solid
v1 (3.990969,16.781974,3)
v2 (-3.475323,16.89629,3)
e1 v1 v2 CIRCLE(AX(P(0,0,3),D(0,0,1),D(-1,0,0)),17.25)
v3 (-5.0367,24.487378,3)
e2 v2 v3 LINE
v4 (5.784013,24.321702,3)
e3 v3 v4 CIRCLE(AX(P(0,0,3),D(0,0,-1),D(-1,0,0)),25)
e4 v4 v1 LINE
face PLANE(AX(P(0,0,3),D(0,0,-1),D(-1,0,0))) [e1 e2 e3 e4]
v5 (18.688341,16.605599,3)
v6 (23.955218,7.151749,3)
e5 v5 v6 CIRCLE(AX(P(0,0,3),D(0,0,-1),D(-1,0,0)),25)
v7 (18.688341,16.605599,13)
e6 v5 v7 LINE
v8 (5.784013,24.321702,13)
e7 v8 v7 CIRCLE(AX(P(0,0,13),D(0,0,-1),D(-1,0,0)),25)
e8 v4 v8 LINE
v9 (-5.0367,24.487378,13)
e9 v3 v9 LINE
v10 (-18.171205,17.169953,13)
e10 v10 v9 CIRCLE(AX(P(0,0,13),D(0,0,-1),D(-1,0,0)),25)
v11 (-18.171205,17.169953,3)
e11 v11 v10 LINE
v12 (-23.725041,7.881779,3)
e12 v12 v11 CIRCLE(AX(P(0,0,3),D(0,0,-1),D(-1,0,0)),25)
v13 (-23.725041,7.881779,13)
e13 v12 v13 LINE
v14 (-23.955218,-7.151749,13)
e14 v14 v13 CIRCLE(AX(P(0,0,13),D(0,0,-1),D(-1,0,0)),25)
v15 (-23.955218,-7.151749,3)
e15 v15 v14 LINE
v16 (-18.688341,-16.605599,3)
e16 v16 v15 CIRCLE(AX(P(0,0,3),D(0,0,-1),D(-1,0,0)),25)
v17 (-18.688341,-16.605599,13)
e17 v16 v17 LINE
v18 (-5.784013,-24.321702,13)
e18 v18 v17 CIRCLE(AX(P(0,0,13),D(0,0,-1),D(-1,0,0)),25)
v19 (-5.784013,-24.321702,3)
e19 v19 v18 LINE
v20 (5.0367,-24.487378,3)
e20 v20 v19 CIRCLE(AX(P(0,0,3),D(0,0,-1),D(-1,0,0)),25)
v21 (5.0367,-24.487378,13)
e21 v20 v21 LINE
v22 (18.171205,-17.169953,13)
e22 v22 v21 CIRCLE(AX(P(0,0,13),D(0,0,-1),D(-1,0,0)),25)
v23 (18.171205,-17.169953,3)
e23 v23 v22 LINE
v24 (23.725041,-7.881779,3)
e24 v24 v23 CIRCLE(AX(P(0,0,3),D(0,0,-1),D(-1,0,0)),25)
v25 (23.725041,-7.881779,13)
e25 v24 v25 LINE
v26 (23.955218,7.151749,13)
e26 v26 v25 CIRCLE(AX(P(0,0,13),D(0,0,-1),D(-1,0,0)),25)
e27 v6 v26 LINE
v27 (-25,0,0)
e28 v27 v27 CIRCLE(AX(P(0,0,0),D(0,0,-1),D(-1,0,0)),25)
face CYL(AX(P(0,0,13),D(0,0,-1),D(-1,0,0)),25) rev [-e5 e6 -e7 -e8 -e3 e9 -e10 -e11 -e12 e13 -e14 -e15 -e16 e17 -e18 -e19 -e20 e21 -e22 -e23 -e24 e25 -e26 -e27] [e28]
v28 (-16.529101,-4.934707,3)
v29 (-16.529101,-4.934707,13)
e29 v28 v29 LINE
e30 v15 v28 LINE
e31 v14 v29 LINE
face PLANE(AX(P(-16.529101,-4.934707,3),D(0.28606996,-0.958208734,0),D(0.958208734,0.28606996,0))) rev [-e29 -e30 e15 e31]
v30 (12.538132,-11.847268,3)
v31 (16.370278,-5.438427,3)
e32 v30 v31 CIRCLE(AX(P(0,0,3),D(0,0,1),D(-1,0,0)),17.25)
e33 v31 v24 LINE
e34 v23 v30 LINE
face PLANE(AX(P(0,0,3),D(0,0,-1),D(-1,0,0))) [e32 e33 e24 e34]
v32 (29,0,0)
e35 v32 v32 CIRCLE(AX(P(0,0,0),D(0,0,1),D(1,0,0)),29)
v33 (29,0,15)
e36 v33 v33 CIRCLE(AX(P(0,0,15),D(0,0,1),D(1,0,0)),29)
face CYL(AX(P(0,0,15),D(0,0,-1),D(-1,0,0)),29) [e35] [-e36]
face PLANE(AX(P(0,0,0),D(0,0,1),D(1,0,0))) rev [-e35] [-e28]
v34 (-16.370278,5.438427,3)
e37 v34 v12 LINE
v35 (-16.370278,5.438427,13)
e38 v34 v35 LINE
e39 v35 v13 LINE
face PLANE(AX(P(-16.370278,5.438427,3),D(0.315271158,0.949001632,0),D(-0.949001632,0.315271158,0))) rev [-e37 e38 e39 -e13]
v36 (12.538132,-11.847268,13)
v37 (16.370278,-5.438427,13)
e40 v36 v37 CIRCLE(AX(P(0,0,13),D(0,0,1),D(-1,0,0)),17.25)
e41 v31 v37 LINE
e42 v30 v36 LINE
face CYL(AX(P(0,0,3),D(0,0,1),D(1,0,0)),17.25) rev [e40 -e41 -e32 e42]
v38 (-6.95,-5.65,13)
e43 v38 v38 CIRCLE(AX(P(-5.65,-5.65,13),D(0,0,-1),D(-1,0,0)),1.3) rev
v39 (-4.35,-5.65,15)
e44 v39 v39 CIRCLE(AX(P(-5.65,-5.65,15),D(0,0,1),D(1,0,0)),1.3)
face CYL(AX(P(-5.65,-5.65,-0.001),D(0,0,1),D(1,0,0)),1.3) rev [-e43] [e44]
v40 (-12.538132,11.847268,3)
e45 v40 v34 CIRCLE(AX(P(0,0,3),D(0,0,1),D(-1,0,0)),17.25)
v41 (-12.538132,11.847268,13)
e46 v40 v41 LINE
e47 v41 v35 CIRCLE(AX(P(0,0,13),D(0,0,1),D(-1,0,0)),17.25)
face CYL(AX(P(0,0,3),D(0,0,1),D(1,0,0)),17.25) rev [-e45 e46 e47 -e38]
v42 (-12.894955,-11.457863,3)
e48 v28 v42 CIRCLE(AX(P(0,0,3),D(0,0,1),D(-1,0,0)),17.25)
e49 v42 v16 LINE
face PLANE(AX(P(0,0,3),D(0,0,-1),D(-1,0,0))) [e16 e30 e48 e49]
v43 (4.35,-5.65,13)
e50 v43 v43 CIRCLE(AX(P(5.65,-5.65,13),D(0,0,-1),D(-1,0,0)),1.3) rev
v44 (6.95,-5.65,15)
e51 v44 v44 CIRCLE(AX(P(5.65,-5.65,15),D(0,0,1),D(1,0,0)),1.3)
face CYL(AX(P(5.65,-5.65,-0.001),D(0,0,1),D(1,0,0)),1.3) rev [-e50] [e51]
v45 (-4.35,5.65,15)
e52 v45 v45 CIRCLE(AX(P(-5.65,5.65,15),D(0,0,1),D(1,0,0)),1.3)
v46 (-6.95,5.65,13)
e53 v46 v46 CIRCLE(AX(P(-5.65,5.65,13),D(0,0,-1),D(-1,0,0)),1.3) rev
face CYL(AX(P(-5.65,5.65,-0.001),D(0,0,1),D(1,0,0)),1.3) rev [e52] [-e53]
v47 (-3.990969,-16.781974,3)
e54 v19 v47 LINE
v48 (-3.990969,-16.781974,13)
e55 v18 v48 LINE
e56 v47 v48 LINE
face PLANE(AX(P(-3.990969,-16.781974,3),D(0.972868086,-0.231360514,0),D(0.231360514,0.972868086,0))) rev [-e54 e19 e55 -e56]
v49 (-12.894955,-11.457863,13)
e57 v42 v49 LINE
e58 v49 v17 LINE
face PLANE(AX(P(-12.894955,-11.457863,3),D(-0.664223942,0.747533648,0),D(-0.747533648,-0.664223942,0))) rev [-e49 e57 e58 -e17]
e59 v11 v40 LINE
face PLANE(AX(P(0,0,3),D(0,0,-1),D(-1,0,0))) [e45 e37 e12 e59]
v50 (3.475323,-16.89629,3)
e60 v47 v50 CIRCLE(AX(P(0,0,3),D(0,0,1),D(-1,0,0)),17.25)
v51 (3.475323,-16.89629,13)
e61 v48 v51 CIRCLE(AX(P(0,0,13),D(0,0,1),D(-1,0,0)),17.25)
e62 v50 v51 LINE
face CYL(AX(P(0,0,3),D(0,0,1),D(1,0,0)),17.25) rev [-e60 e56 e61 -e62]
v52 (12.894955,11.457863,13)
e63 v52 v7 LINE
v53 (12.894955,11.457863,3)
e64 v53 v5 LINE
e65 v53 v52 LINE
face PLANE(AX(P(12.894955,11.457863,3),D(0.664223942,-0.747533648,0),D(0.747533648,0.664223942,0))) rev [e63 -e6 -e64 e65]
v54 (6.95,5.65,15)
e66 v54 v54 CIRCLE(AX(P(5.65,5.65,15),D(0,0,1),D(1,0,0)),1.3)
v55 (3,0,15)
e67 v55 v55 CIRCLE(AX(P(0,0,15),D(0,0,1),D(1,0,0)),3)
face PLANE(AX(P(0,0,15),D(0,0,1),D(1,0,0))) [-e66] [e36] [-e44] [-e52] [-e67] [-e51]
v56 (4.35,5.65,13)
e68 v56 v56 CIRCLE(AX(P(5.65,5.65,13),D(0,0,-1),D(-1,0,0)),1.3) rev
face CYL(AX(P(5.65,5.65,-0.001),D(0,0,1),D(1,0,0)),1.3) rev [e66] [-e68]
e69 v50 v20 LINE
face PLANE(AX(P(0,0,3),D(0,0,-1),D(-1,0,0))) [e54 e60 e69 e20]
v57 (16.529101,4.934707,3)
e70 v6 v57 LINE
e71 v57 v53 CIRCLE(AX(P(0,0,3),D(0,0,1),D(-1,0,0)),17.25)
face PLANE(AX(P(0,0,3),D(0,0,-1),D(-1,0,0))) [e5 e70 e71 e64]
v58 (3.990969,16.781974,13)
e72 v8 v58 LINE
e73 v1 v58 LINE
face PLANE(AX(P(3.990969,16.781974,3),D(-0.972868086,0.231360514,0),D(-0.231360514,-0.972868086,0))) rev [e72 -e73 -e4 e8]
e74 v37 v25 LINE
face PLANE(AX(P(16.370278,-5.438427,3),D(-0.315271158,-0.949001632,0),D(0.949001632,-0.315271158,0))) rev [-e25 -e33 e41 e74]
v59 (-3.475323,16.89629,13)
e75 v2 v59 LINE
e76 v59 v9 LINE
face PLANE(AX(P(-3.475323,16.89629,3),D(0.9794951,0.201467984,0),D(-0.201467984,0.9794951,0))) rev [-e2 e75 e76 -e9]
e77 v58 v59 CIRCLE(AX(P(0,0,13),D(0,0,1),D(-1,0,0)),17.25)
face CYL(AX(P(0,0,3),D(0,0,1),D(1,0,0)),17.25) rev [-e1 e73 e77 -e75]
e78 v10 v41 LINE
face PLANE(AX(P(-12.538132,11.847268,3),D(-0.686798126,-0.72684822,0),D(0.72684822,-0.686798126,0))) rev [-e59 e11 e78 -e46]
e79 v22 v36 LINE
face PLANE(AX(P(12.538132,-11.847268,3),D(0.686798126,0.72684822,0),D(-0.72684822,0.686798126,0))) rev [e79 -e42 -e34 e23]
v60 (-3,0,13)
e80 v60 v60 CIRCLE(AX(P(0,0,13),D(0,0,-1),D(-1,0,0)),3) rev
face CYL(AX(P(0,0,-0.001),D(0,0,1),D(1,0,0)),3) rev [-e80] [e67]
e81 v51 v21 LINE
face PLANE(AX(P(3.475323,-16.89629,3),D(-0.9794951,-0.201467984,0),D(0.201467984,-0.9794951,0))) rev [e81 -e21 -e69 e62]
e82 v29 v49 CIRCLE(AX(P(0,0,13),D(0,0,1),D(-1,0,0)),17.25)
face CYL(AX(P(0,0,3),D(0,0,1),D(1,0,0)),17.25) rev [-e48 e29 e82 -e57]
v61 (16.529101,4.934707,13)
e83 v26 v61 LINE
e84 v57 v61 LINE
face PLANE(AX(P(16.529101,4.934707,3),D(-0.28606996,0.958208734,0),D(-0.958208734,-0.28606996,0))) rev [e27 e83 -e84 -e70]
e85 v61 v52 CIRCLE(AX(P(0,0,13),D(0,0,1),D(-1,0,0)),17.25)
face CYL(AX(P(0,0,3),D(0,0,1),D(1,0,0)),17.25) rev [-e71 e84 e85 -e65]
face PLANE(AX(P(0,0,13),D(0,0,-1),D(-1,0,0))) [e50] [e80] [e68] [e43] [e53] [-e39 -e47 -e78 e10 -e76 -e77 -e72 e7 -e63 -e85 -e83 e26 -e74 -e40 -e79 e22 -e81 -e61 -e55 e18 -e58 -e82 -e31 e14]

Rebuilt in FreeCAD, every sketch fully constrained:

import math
import FreeCAD as App
import Part
import Sketcher
Q = App.Units.Quantity

doc = App.newDocument("Part")
body = doc.addObject("PartDesign::Body", "Body")

# Sketch on XY plane
sketch1 = body.newObject("Sketcher::SketchObject", "Sketch")
sketch1.AttachmentSupport = (doc.getObject("XY_Plane"), [""])
sketch1.MapMode = "FlatFace"
sketch1.addGeometry(Part.Circle(App.Vector(0, 0, 0), App.Vector(0, 0, 1), 29), False)
sketch1.addConstraint([
    Sketcher.Constraint("Coincident", 0, 3, -1, 1),
    Sketcher.Constraint("Diameter", 0, Q("58 mm")),
])
pad1 = body.newObject("PartDesign::Pad", "Pad")
pad1.Profile = sketch1
pad1.Length = 15

# Sketch on XY plane
sketch2 = body.newObject("Sketcher::SketchObject", "Sketch001")
sketch2.AttachmentSupport = (doc.getObject("XY_Plane"), [""])
sketch2.MapMode = "FlatFace"
sketch2.addGeometry(Part.Circle(App.Vector(0, 0, 0), App.Vector(0, 0, 1), 25), False)
sketch2.addConstraint([
    Sketcher.Constraint("Coincident", 0, 3, -1, 1),
    Sketcher.Constraint("Diameter", 0, Q("50 mm")),
])
pocket1 = body.newObject("PartDesign::Pocket", "Pocket")
pocket1.Profile = sketch2
pocket1.Length = 13
pocket1.Reversed = True

# Sketch on XY plane
sketch3 = body.newObject("Sketcher::SketchObject", "Sketch002")
sketch3.AttachmentSupport = (doc.getObject("XY_Plane"), [""])
sketch3.MapMode = "FlatFace"
sketch3.AttachmentOffset = App.Placement(App.Vector(0, 0, 15), App.Rotation())
sketch3.addGeometry(Part.Circle(App.Vector(5.65, 5.65, 0), App.Vector(0, 0, 1), 1.3), False)
sketch3.addConstraint([
    Sketcher.Constraint("Diameter", 0, Q("2.6 mm")),
    Sketcher.Constraint("DistanceX", -1, 1, 0, 3, Q("5.65 mm")),
    Sketcher.Constraint("DistanceY", -1, 1, 0, 3, Q("5.65 mm")),
])
pocket2 = body.newObject("PartDesign::Pocket", "Pocket001")
pocket2.Profile = sketch3
pocket2.Type = "UpToFirst"

# Sketch on XY plane
sketch4 = body.newObject("Sketcher::SketchObject", "Sketch003")
sketch4.AttachmentSupport = (doc.getObject("XY_Plane"), [""])
sketch4.MapMode = "FlatFace"
sketch4.AttachmentOffset = App.Placement(App.Vector(0, 0, 15), App.Rotation())
sketch4.addGeometry(Part.Circle(App.Vector(5.65, -5.65, 0), App.Vector(0, 0, 1), 1.3), False)
sketch4.addConstraint([
    Sketcher.Constraint("Diameter", 0, Q("2.6 mm")),
    Sketcher.Constraint("DistanceX", -1, 1, 0, 3, Q("5.65 mm")),
    Sketcher.Constraint("DistanceY", 0, 3, -1, 1, Q("5.65 mm")),
])
pocket3 = body.newObject("PartDesign::Pocket", "Pocket002")
pocket3.Profile = sketch4
pocket3.Type = "UpToFirst"

# Sketch on XY plane
sketch5 = body.newObject("Sketcher::SketchObject", "Sketch004")
sketch5.AttachmentSupport = (doc.getObject("XY_Plane"), [""])
sketch5.MapMode = "FlatFace"
sketch5.AttachmentOffset = App.Placement(App.Vector(0, 0, 15), App.Rotation())
sketch5.addGeometry(Part.Circle(App.Vector(-5.65, -5.65, 0), App.Vector(0, 0, 1), 1.3), False)
sketch5.addConstraint([
    Sketcher.Constraint("Diameter", 0, Q("2.6 mm")),
    Sketcher.Constraint("DistanceX", 0, 3, -1, 1, Q("5.65 mm")),
    Sketcher.Constraint("DistanceY", 0, 3, -1, 1, Q("5.65 mm")),
])
pocket4 = body.newObject("PartDesign::Pocket", "Pocket003")
pocket4.Profile = sketch5
pocket4.Type = "UpToFirst"

# Sketch on XY plane
sketch6 = body.newObject("Sketcher::SketchObject", "Sketch005")
sketch6.AttachmentSupport = (doc.getObject("XY_Plane"), [""])
sketch6.MapMode = "FlatFace"
sketch6.AttachmentOffset = App.Placement(App.Vector(0, 0, 15), App.Rotation())
sketch6.addGeometry(Part.Circle(App.Vector(-5.65, 5.65, 0), App.Vector(0, 0, 1), 1.3), False)
sketch6.addConstraint([
    Sketcher.Constraint("Diameter", 0, Q("2.6 mm")),
    Sketcher.Constraint("DistanceX", 0, 3, -1, 1, Q("5.65 mm")),
    Sketcher.Constraint("DistanceY", -1, 1, 0, 3, Q("5.65 mm")),
])
pocket5 = body.newObject("PartDesign::Pocket", "Pocket004")
pocket5.Profile = sketch6
pocket5.Type = "UpToFirst"

# Sketch on XY plane
sketch7 = body.newObject("Sketcher::SketchObject", "Sketch006")
sketch7.AttachmentSupport = (doc.getObject("XY_Plane"), [""])
sketch7.MapMode = "FlatFace"
sketch7.AttachmentOffset = App.Placement(App.Vector(0, 0, 15), App.Rotation())
sketch7.addGeometry(Part.Circle(App.Vector(0, 0, 0), App.Vector(0, 0, 1), 3), False)
sketch7.addConstraint([
    Sketcher.Constraint("Coincident", 0, 3, -1, 1),
    Sketcher.Constraint("Diameter", 0, Q("6 mm")),
])
pocket6 = body.newObject("PartDesign::Pocket", "Pocket005")
pocket6.Profile = sketch7
pocket6.Type = "UpToFirst"

# Sketch on XY plane
sketch8 = body.newObject("Sketcher::SketchObject", "Sketch007")
sketch8.AttachmentSupport = (doc.getObject("XY_Plane"), [""])
sketch8.MapMode = "FlatFace"
sketch8.AttachmentOffset = App.Placement(App.Vector(0, 0, 13), App.Rotation())
sketch8.addGeometry([
    Part.LineSegment(App.Vector(-3.475323, 16.89629, 0), App.Vector(-5.0367, 24.487378, 0)),  # 0
    Part.ArcOfCircle(Part.Circle(App.Vector(0, 0, 0), App.Vector(0, 0, 1), 25), math.radians(76.622816), math.radians(101.622816)),  # 1
    Part.LineSegment(App.Vector(5.784013, 24.321702, 0), App.Vector(3.990969, 16.781974, 0)),  # 2
    Part.ArcOfCircle(Part.Circle(App.Vector(0, 0, 0), App.Vector(0, 0, 1), 17.25), math.radians(76.622816), math.radians(101.622816)),  # 3
    Part.LineSegment(App.Vector(-16.370278, 5.438427, 0), App.Vector(-23.725041, 7.881779, 0)),  # 4
    Part.ArcOfCircle(Part.Circle(App.Vector(0, 0, 0), App.Vector(0, 0, 1), 25), math.radians(136.622816), math.radians(161.622816)),  # 5
    Part.LineSegment(App.Vector(-18.171205, 17.169953, 0), App.Vector(-12.538132, 11.847268, 0)),  # 6
    Part.ArcOfCircle(Part.Circle(App.Vector(0, 0, 0), App.Vector(0, 0, 1), 17.25), math.radians(136.622816), math.radians(161.622816)),  # 7
    Part.LineSegment(App.Vector(-12.894955, -11.457863, 0), App.Vector(-18.688341, -16.605599, 0)),  # 8
    Part.ArcOfCircle(Part.Circle(App.Vector(0, 0, 0), App.Vector(0, 0, 1), 25), math.radians(-163.377184), math.radians(-138.377184)),  # 9
    Part.LineSegment(App.Vector(-23.955218, -7.151749, 0), App.Vector(-16.529101, -4.934707, 0)),  # 10
    Part.ArcOfCircle(Part.Circle(App.Vector(0, 0, 0), App.Vector(0, 0, 1), 17.25), math.radians(-163.377184), math.radians(-138.377184)),  # 11
    Part.LineSegment(App.Vector(3.475323, -16.89629, 0), App.Vector(5.0367, -24.487378, 0)),  # 12
    Part.ArcOfCircle(Part.Circle(App.Vector(0, 0, 0), App.Vector(0, 0, 1), 25), math.radians(-103.377184), math.radians(-78.377184)),  # 13
    Part.LineSegment(App.Vector(-5.784013, -24.321702, 0), App.Vector(-3.990969, -16.781974, 0)),  # 14
    Part.ArcOfCircle(Part.Circle(App.Vector(0, 0, 0), App.Vector(0, 0, 1), 17.25), math.radians(-103.377184), math.radians(-78.377184)),  # 15
    Part.LineSegment(App.Vector(16.370278, -5.438427, 0), App.Vector(23.725041, -7.881779, 0)),  # 16
    Part.ArcOfCircle(Part.Circle(App.Vector(0, 0, 0), App.Vector(0, 0, 1), 25), math.radians(-43.377184), math.radians(-18.377184)),  # 17
    Part.LineSegment(App.Vector(18.171205, -17.169953, 0), App.Vector(12.538132, -11.847268, 0)),  # 18
    Part.ArcOfCircle(Part.Circle(App.Vector(0, 0, 0), App.Vector(0, 0, 1), 17.25), math.radians(-43.377184), math.radians(-18.377184)),  # 19
    Part.LineSegment(App.Vector(12.894955, 11.457863, 0), App.Vector(18.688341, 16.605599, 0)),  # 20
    Part.ArcOfCircle(Part.Circle(App.Vector(0, 0, 0), App.Vector(0, 0, 1), 25), math.radians(16.622816), math.radians(41.622816)),  # 21
    Part.LineSegment(App.Vector(23.955218, 7.151749, 0), App.Vector(16.529101, 4.934707, 0)),  # 22
    Part.ArcOfCircle(Part.Circle(App.Vector(0, 0, 0), App.Vector(0, 0, 1), 17.25), math.radians(16.622816), math.radians(41.622816)),  # 23
], False)
sketch8.addConstraint([
    Sketcher.Constraint("Coincident", 0, 2, 1, 2),
    Sketcher.Constraint("Coincident", 1, 1, 2, 1),
    Sketcher.Constraint("Coincident", 2, 2, 3, 1),
    Sketcher.Constraint("Coincident", 3, 2, 0, 1),
    Sketcher.Constraint("Coincident", 4, 2, 5, 2),
    Sketcher.Constraint("Coincident", 5, 1, 6, 1),
    Sketcher.Constraint("Coincident", 6, 2, 7, 1),
    Sketcher.Constraint("Coincident", 7, 2, 4, 1),
    Sketcher.Constraint("Coincident", 8, 2, 9, 2),
    Sketcher.Constraint("Coincident", 9, 1, 10, 1),
    Sketcher.Constraint("Coincident", 10, 2, 11, 1),
    Sketcher.Constraint("Coincident", 11, 2, 8, 1),
    Sketcher.Constraint("Coincident", 12, 2, 13, 2),
    Sketcher.Constraint("Coincident", 13, 1, 14, 1),
    Sketcher.Constraint("Coincident", 14, 2, 15, 1),
    Sketcher.Constraint("Coincident", 15, 2, 12, 1),
    Sketcher.Constraint("Coincident", 16, 2, 17, 2),
    Sketcher.Constraint("Coincident", 17, 1, 18, 1),
    Sketcher.Constraint("Coincident", 18, 2, 19, 1),
    Sketcher.Constraint("Coincident", 19, 2, 16, 1),
    Sketcher.Constraint("Coincident", 20, 2, 21, 2),
    Sketcher.Constraint("Coincident", 21, 1, 22, 1),
    Sketcher.Constraint("Coincident", 22, 2, 23, 1),
    Sketcher.Constraint("Coincident", 23, 2, 20, 1),
    Sketcher.Constraint("Coincident", 1, 3, -1, 1),
    Sketcher.Constraint("Coincident", 3, 3, -1, 1),
    Sketcher.Constraint("Coincident", 5, 3, -1, 1),
    Sketcher.Constraint("Coincident", 7, 3, -1, 1),
    Sketcher.Constraint("Coincident", 9, 3, -1, 1),
    Sketcher.Constraint("Coincident", 11, 3, -1, 1),
    Sketcher.Constraint("Coincident", 13, 3, -1, 1),
    Sketcher.Constraint("Coincident", 15, 3, -1, 1),
    Sketcher.Constraint("Coincident", 17, 3, -1, 1),
    Sketcher.Constraint("Coincident", 19, 3, -1, 1),
    Sketcher.Constraint("Coincident", 21, 3, -1, 1),
    Sketcher.Constraint("Coincident", 23, 3, -1, 1),
    Sketcher.Constraint("Equal", 1, 5),
    Sketcher.Constraint("Equal", 3, 7),
    Sketcher.Constraint("Equal", 5, 9),
    Sketcher.Constraint("Equal", 7, 11),
    Sketcher.Constraint("Equal", 9, 13),
    Sketcher.Constraint("Equal", 11, 15),
    Sketcher.Constraint("Equal", 13, 17),
    Sketcher.Constraint("Equal", 15, 19),
    Sketcher.Constraint("Equal", 17, 21),
    Sketcher.Constraint("Equal", 19, 23),
    Sketcher.Constraint("Parallel", 0, 12),
    Sketcher.Constraint("Parallel", 2, 14),
    Sketcher.Constraint("Parallel", 4, 16),
    Sketcher.Constraint("Parallel", 6, 18),
    Sketcher.Constraint("Parallel", 8, 20),
    Sketcher.Constraint("Parallel", 10, 22),
    Sketcher.Constraint("Radius", 1, Q("25 mm")),
    Sketcher.Constraint("Radius", 3, Q("17.25 mm")),
    Sketcher.Constraint("DistanceX", 0, 2, -1, 1, Q("5.0367 mm")),
    Sketcher.Constraint("DistanceY", 8, 2, -1, 1, Q("16.605599 mm")),
    Sketcher.Constraint("DistanceX", 10, 2, -1, 1, Q("16.529101 mm")),
    Sketcher.Constraint("DistanceX", -1, 1, 12, 2, Q("5.0367 mm")),
    Sketcher.Constraint("DistanceY", -1, 1, 20, 2, Q("16.605599 mm")),
    Sketcher.Constraint("DistanceX", -1, 1, 22, 2, Q("16.529101 mm")),
    Sketcher.Constraint("DistanceX", -1, 1, 2, 2, Q("3.990969 mm")),
    Sketcher.Constraint("DistanceY", -1, 1, 3, 2, Q("16.89629 mm")),
    Sketcher.Constraint("DistanceX", 4, 2, -1, 1, Q("23.725041 mm")),
    Sketcher.Constraint("DistanceX", 6, 2, -1, 1, Q("12.538132 mm")),
    Sketcher.Constraint("DistanceX", 7, 2, -1, 1, Q("16.370278 mm")),
    Sketcher.Constraint("DistanceX", 9, 1, -1, 1, Q("23.955218 mm")),
    Sketcher.Constraint("DistanceX", 14, 2, -1, 1, Q("3.990969 mm")),
    Sketcher.Constraint("DistanceX", -1, 1, 16, 2, Q("23.725041 mm")),
    Sketcher.Constraint("DistanceX", -1, 1, 18, 2, Q("12.538132 mm")),
    Sketcher.Constraint("DistanceY", 3, 2, 1, 1, Q("7.425412 mm")),
    Sketcher.Constraint("DistanceY", 2, 2, 5, 1, Q("0.387979 mm")),
    Sketcher.Constraint("DistanceY", 13, 1, 11, 2, Q("12.863839 mm")),
])
pad2 = body.newObject("PartDesign::Pad", "Pad001")
pad2.Profile = sketch8
pad2.Length = 10
pad2.Reversed = True

doc.recompute()
